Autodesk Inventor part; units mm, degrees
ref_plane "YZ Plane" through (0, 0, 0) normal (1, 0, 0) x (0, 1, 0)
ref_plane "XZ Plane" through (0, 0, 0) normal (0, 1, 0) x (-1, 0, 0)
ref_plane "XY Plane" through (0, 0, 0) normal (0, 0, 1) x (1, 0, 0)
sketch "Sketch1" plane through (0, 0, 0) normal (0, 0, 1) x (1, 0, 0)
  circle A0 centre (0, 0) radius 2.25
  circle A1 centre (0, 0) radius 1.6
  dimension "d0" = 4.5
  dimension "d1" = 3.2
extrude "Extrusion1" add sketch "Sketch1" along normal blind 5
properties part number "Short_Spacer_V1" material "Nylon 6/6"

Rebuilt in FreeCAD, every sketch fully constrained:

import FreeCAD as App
import Part
import Sketcher

doc = App.newDocument("Part")
body = doc.addObject("PartDesign::Body", "Body")

sketch1 = body.newObject("Sketcher::SketchObject", "Sketch")
sketch1.AttachmentSupport = (doc.getObject("XY_Plane"), [""])
sketch1.MapMode = "FlatFace"
sketch1.addGeometry([
    Part.Circle(App.Vector(0, 0, 0), App.Vector(0, 0, 1), 2.25),
    Part.Circle(App.Vector(0, 0, 0), App.Vector(0, 0, 1), 1.6),
], False)
sketch1.addConstraint([
    Sketcher.Constraint("Coincident", 0, 3, -1, 1),
    Sketcher.Constraint("Coincident", 1, 3, -1, 1),
    Sketcher.Constraint("Diameter", 0, 4.5),
    Sketcher.Constraint("Diameter", 1, 3.2),
])
pad1 = body.newObject("PartDesign::Pad", "Pad")
pad1.Profile = sketch1
pad1.Length = 5

doc.recompute()
